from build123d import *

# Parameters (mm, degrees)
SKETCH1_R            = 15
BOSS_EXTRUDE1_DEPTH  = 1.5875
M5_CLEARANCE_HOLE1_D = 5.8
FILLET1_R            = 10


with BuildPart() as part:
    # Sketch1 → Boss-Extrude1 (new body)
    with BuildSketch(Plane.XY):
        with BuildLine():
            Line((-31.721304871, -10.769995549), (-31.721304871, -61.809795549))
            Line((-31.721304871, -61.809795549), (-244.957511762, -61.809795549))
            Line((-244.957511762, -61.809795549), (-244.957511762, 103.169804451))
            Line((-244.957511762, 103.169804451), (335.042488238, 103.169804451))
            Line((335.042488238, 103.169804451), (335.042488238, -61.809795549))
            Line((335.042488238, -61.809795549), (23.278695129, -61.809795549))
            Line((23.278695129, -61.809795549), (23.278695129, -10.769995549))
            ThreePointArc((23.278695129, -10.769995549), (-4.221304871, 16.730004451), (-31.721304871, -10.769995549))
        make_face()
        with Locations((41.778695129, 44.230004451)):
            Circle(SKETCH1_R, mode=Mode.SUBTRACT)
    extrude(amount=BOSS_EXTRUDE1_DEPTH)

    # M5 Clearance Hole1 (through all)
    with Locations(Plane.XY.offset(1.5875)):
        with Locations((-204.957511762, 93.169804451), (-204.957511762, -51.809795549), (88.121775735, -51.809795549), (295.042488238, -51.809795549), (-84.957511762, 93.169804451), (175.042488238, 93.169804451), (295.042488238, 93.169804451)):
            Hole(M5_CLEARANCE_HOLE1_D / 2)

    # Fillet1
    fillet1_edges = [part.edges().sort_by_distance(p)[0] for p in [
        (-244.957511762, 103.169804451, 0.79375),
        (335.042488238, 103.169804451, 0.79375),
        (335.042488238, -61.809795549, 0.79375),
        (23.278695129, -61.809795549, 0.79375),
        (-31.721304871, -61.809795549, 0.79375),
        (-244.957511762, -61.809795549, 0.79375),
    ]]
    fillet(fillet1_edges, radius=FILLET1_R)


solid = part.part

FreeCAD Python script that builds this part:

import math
import FreeCAD as App
import Part
import Sketcher


def edges_at(feature, points):
    """Names of the edges that pass closest to the given points."""
    edges = feature.Shape.Edges
    near = lambda p: min(range(len(edges)), key=lambda i: edges[i].distToShape(Part.Vertex(*p))[0])
    return sorted({f"Edge{near(p) + 1}" for p in points})

doc = App.newDocument("Part")
body = doc.addObject("PartDesign::Body", "Body")

# Sketch on XY plane
sketch1 = doc.addObject("Sketcher::SketchObject", "Sketch")
body.addObject(sketch1)
sketch1.AttachmentSupport = (doc.XY_Plane, [""])
sketch1.MapMode = "FlatFace"
sketch1.addGeometry([
    Part.LineSegment(App.Vector(-32, -62, 0), App.Vector(-32, -11, 0)),  # 0
    Part.ArcOfCircle(Part.Circle(App.Vector(-4, -11, 0), App.Vector(0, 0, 1), 28), math.radians(0), math.radians(180)),  # 1
    Part.LineSegment(App.Vector(23, -11, 0), App.Vector(23, -62, 0)),  # 2
    Part.LineSegment(App.Vector(23, -62, 0), App.Vector(335, -62, 0)),  # 3
    Part.LineSegment(App.Vector(335, -62, 0), App.Vector(335, 103, 0)),  # 4
    Part.LineSegment(App.Vector(335, 103, 0), App.Vector(-245, 103, 0)),  # 5
    Part.LineSegment(App.Vector(-245, 103, 0), App.Vector(-245, -62, 0)),  # 6
    Part.LineSegment(App.Vector(-245, -62, 0), App.Vector(-32, -62, 0)),  # 7
    Part.Circle(App.Vector(42, 44, 0), App.Vector(0, 0, 1), 15),  # 8
], False)
sketch1.addConstraint([
    Sketcher.Constraint("Tangent", 0, 2, 1, 2),
    Sketcher.Constraint("Tangent", 1, 1, 2, 1),
    Sketcher.Constraint("Coincident", 2, 2, 3, 1),
    Sketcher.Constraint("Coincident", 3, 2, 4, 1),
    Sketcher.Constraint("Coincident", 4, 2, 5, 1),
    Sketcher.Constraint("Coincident", 5, 2, 6, 1),
    Sketcher.Constraint("Coincident", 6, 2, 7, 1),
    Sketcher.Constraint("Coincident", 7, 2, 0, 1),
    Sketcher.Constraint("Vertical", 0),
    Sketcher.Constraint("Vertical", 2),
    Sketcher.Constraint("Horizontal", 3),
    Sketcher.Constraint("Vertical", 4),
    Sketcher.Constraint("Horizontal", 5),
    Sketcher.Constraint("Vertical", 6),
    Sketcher.Constraint("Horizontal", 7),
    Sketcher.Constraint("Horizontal", 3, 2, 6, 2),
    Sketcher.Constraint("Diameter", 8, 30.0),
    Sketcher.Constraint("Radius", 1, 27.5),
    Sketcher.Constraint("DistanceX", 5, 2, 5, 1, 580.0),
    Sketcher.Constraint("DistanceX", 1, 3, 8, 3, 46.0),
    Sketcher.Constraint("DistanceY", 1, 3, 8, 3, 55.0),
    Sketcher.Constraint("DistanceY", 0, 1, 0, 2, 51.0398),
    Sketcher.Constraint("DistanceY", 4, 1, 4, 2, 164.9796),
    Sketcher.Constraint("DistanceX", 3, 1, 3, 2, 311.763793),
    Sketcher.Constraint("DistanceX", -1, 1, 3, 2, 335.042488),
    Sketcher.Constraint("DistanceY", 1, 3, -1, 1, 10.769996),
])
pad1 = doc.addObject("PartDesign::Pad", "Pad")
body.addObject(pad1)
pad1.Profile = sketch1
pad1.Length = 1.5875

# Sketch on XY plane
sketch2 = doc.addObject("Sketcher::SketchObject", "Sketch001")
body.addObject(sketch2)
sketch2.AttachmentSupport = (doc.XY_Plane, [""])
sketch2.MapMode = "FlatFace"
sketch2.AttachmentOffset = App.Placement(App.Vector(0, 0, 1.5875), App.Rotation())
sketch2.addGeometry([
    Part.Circle(App.Vector(-205, 93.2, 0), App.Vector(0, 0, 1), 2.9),  # 0
    Part.Circle(App.Vector(-205, -51.8, 0), App.Vector(0, 0, 1), 2.9),  # 1
    Part.Circle(App.Vector(88.1, -51.8, 0), App.Vector(0, 0, 1), 2.9),  # 2
    Part.Circle(App.Vector(295, -51.8, 0), App.Vector(0, 0, 1), 2.9),  # 3
    Part.Circle(App.Vector(-85, 93.2, 0), App.Vector(0, 0, 1), 2.9),  # 4
    Part.Circle(App.Vector(175, 93.2, 0), App.Vector(0, 0, 1), 2.9),  # 5
    Part.Circle(App.Vector(295, 93.2, 0), App.Vector(0, 0, 1), 2.9),  # 6
], False)
sketch2.addConstraint([
    Sketcher.Constraint("Equal", 0, 1),
    Sketcher.Constraint("Equal", 1, 2),
    Sketcher.Constraint("Equal", 2, 3),
    Sketcher.Constraint("Equal", 3, 4),
    Sketcher.Constraint("Equal", 4, 5),
    Sketcher.Constraint("Equal", 5, 6),
    Sketcher.Constraint("Horizontal", 1, 3, 2, 3),
    Sketcher.Constraint("Horizontal", 2, 3, 3, 3),
    Sketcher.Constraint("Horizontal", 0, 3, 4, 3),
    Sketcher.Constraint("Horizontal", 4, 3, 5, 3),
    Sketcher.Constraint("Horizontal", 5, 3, 6, 3),
    Sketcher.Constraint("Vertical", 0, 3, 1, 3),
    Sketcher.Constraint("Vertical", 3, 3, 6, 3),
    Sketcher.Constraint("Diameter", 0, 5.8),
    Sketcher.Constraint("DistanceX", 1, 3, 3, 3, 500.0),
    Sketcher.Constraint("DistanceX", 0, 3, 4, 3, 120.0),
    Sketcher.Constraint("DistanceX", 5, 3, 3, 3, 120.0),
    Sketcher.Constraint("DistanceY", 1, 3, 0, 3, 144.9796),
    Sketcher.Constraint("DistanceX", 0, 3, -1, 1, 204.957512),
    Sketcher.Constraint("DistanceY", -1, 1, 0, 3, 93.169804),
    Sketcher.Constraint("DistanceX", -1, 1, 2, 3, 88.121776),
])
doc.recompute()
hole = doc.addObject("PartDesign::Hole", "Hole")
body.addObject(hole)
hole.Profile = sketch2
hole.ThreadType = "None"
hole.Diameter = 5.8
hole.DepthType = "ThroughAll"
doc.recompute()

fillet = doc.addObject("PartDesign::Fillet", "Fillet")
body.addObject(fillet)
fillet.Base = (hole, edges_at(hole, [
    (-244.958, 103.17, 0.794),
    (335.042, 103.17, 0.794),
    (335.042, -61.81, 0.794),
    (23.279, -61.81, 0.794),
    (-31.721, -61.81, 0.794),
    (-244.958, -61.81, 0.794),
]))
fillet.Radius = 10

doc.recompute()
